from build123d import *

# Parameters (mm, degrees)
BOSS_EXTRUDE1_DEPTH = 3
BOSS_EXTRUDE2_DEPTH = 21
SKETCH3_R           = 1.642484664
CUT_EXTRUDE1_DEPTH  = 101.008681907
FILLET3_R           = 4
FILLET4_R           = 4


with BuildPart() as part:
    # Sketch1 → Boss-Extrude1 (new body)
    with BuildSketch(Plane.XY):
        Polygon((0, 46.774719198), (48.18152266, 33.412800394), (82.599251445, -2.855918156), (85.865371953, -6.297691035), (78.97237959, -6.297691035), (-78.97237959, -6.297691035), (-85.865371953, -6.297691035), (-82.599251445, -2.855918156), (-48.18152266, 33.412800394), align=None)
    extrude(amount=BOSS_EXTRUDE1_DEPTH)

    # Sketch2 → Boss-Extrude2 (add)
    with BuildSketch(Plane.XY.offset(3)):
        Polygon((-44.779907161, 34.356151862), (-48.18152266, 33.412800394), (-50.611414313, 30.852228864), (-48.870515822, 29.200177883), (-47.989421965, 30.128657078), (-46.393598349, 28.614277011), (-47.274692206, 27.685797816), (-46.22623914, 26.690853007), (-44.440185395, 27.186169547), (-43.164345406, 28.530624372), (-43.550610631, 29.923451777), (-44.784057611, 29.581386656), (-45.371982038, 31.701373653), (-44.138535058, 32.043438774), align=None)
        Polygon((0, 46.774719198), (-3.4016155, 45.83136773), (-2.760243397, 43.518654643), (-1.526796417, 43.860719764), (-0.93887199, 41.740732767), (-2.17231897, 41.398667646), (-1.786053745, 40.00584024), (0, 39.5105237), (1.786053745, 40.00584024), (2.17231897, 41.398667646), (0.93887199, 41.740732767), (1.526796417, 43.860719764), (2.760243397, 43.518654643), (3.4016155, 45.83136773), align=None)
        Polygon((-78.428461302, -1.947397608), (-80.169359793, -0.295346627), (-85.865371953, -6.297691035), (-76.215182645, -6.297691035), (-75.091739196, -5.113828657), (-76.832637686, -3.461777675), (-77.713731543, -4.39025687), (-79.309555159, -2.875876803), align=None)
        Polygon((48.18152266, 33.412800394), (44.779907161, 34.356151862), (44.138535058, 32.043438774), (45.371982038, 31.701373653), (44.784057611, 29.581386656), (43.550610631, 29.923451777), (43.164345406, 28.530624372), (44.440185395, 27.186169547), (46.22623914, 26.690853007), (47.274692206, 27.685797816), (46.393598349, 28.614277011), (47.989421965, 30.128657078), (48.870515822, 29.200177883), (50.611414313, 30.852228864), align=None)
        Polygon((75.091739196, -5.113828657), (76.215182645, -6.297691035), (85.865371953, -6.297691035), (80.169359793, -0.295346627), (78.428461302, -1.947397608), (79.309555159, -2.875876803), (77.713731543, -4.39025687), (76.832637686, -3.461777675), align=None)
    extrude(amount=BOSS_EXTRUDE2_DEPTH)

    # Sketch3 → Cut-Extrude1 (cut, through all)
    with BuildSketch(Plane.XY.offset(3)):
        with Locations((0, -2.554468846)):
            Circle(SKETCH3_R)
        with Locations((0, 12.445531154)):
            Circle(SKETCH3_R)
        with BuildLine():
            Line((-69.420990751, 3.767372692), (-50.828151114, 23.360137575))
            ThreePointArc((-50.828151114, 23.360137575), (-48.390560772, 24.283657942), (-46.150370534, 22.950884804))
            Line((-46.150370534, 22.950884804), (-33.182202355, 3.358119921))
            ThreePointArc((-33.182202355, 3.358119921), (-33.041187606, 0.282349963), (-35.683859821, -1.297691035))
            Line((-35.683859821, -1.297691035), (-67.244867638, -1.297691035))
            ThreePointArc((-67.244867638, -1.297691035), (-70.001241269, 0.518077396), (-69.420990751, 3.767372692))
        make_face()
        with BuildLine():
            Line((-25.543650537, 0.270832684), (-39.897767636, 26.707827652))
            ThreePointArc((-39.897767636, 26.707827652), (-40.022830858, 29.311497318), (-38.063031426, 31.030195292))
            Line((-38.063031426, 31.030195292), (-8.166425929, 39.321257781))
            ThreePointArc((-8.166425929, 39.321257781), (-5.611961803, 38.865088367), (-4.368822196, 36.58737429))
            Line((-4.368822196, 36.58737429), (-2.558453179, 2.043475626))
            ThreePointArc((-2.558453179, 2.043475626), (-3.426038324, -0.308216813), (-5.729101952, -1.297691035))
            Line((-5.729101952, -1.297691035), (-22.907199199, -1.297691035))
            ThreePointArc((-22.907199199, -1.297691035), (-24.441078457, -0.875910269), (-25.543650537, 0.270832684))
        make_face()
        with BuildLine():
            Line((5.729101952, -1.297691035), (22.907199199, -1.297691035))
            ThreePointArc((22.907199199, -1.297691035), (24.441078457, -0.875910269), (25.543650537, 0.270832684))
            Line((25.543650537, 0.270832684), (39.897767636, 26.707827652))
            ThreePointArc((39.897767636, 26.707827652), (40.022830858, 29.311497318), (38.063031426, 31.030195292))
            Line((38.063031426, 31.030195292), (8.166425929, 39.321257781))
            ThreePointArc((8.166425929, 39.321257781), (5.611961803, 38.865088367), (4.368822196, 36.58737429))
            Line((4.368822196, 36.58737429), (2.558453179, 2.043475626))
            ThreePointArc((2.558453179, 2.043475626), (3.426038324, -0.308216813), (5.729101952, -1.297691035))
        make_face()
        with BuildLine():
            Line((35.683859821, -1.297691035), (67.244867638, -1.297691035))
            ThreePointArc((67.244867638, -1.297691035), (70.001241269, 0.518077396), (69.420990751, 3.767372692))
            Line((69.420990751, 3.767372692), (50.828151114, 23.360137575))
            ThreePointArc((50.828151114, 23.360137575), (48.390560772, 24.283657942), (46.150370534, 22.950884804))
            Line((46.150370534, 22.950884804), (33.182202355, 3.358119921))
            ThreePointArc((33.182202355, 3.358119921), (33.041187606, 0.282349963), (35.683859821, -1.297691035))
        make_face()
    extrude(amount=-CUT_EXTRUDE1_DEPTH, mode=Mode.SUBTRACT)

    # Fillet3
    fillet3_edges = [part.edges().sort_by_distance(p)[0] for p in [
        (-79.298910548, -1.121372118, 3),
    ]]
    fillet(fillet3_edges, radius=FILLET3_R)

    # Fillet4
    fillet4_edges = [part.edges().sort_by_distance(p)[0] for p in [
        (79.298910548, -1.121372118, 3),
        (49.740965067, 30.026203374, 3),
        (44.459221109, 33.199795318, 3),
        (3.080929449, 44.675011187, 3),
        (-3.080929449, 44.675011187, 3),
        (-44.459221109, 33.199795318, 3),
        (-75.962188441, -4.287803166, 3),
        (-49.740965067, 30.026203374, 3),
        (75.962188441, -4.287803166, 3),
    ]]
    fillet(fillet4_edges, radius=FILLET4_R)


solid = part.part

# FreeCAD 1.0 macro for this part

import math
import FreeCAD as App
import Part
import Sketcher

V = App.Vector
Q = App.Units.Quantity


def edges_at(feature, points):
    """Names of the edges that pass closest to the given points."""
    edges = feature.Shape.Edges
    near = lambda p: min(range(len(edges)), key=lambda i: edges[i].distToShape(Part.Vertex(*p))[0])
    return sorted({f"Edge{near(p) + 1}" for p in points})

doc = App.newDocument("Part")
params = doc.addObject("Spreadsheet::Sheet", "Params")
for row, (alias, value) in enumerate([
    ("sketch1_length", "50 mm"),
    ("pad1_length", "3 mm"),
    ("sketch2_length", "2.4 mm"),
    ("sketch2_length2", "2.2 mm"),
    ("sketch2_length3", "3.53 mm"),
    ("sketch2_length4", "1.28 mm"),
    ("pad2_length", "21 mm"),
    ("sketch3_radius", "3 mm"),
    ("fillet_radius", "4 mm"),
    ("fillet2_radius", "4 mm"),
], start=1):
    params.set(f"A{row}", alias)
    params.set(f"B{row}", "=" + value)
    params.setAlias(f"B{row}", alias)

body = doc.addObject("PartDesign::Body", "Body")

sketch1 = body.newObject("Sketcher::SketchObject", "Sketch")
sketch1.AttachmentSupport = (doc.getObject("XY_Plane"), [""])
sketch1.MapMode = "FlatFace"
sketch1.addGeometry(Part.LineSegment(V(48.2, 33.4, 0), V(0, 46.8, 0)), False)
sketch1.addGeometry(Part.LineSegment(V(0, 46.8, 0), V(-48.2, 33.4, 0)), False)
sketch1.addGeometry(Part.LineSegment(V(-48.2, 33.4, 0), V(-82.6, -2.9, 0)), False)
sketch1.addGeometry(Part.LineSegment(V(-82.6, -2.9, 0), V(-85.9, -6.3, 0)), False)
sketch1.addGeometry(Part.LineSegment(V(-85.9, -6.3, 0), V(85.9, -6.3, 0)), False)
sketch1.addGeometry(Part.LineSegment(V(85.9, -6.3, 0), V(82.6, -2.9, 0)), False)
sketch1.addGeometry(Part.LineSegment(V(82.6, -2.9, 0), V(48.2, 33.4, 0)), False)
sketch1.addConstraint(Sketcher.Constraint("Coincident", 0, 2, 1, 1))
sketch1.addConstraint(Sketcher.Constraint("Coincident", 1, 2, 2, 1))
sketch1.addConstraint(Sketcher.Constraint("Coincident", 2, 2, 3, 1))
sketch1.addConstraint(Sketcher.Constraint("Coincident", 3, 2, 4, 1))
sketch1.addConstraint(Sketcher.Constraint("Coincident", 4, 2, 5, 1))
sketch1.addConstraint(Sketcher.Constraint("Coincident", 5, 2, 6, 1))
sketch1.addConstraint(Sketcher.Constraint("Coincident", 6, 2, 0, 1))
sketch1.addConstraint(Sketcher.Constraint("Horizontal", 4))
sketch1.addConstraint(Sketcher.Constraint("Symmetric", 2, 2, 5, 2, -2))
sketch1.addConstraint(Sketcher.Constraint("Symmetric", 1, 2, 6, 2, -2))
sketch1.addConstraint(Sketcher.Constraint("PointOnObject", 0, 2, -2))
sketch1.addConstraint(Sketcher.Constraint("Parallel", 2, 3))
sketch1.addConstraint(Sketcher.Constraint("Parallel", 5, 6))
sketch1.addConstraint(Sketcher.Constraint("Equal", 1, 2))
sketch1.addConstraint(Sketcher.Constraint("Distance", 0, Q("50 mm")))
sketch1.addConstraint(Sketcher.Constraint("Angle", 0, Q("164.5 deg")))
sketch1.addConstraint(Sketcher.Constraint("Angle", 2, Q("-133.5 deg")))
sketch1.addConstraint(Sketcher.Constraint("DistanceY", -1, 1, 1, 2, Q("33.4128 mm")))
sketch1.addConstraint(Sketcher.Constraint("DistanceX", 4, 1, 4, 2, Q("171.730744 mm")))
sketch1.setExpression("Constraints[14]", "Params.sketch1_length")
pad1 = body.newObject("PartDesign::Pad", "Pad")
pad1.Profile = sketch1
pad1.setExpression("Length", "Params.pad1_length")

sketch2 = body.newObject("Sketcher::SketchObject", "Sketch001")
sketch2.AttachmentSupport = (doc.getObject("XY_Plane"), [""])
sketch2.MapMode = "FlatFace"
sketch2.AttachmentOffset = App.Placement(V(0, 0, 3), App.Rotation())
sketch2.addGeometry(Part.LineSegment(V(-44.8, 34.4, 0), V(-48.2, 33.4, 0)), False)
sketch2.addGeometry(Part.LineSegment(V(-48.2, 33.4, 0), V(-50.6, 30.9, 0)), False)
sketch2.addGeometry(Part.LineSegment(V(-50.6, 30.9, 0), V(-48.9, 29.2, 0)), False)
sketch2.addGeometry(Part.LineSegment(V(-48.9, 29.2, 0), V(-48, 30.1, 0)), False)
sketch2.addGeometry(Part.LineSegment(V(-48, 30.1, 0), V(-46.4, 28.6, 0)), False)
sketch2.addGeometry(Part.LineSegment(V(-46.4, 28.6, 0), V(-47.3, 27.7, 0)), False)
sketch2.addGeometry(Part.LineSegment(V(-47.3, 27.7, 0), V(-46.2, 26.7, 0)), False)
sketch2.addGeometry(Part.LineSegment(V(-46.2, 26.7, 0), V(-44.4, 27.2, 0)), False)
sketch2.addGeometry(Part.LineSegment(V(-44.4, 27.2, 0), V(-43.2, 28.5, 0)), False)
sketch2.addGeometry(Part.LineSegment(V(-43.2, 28.5, 0), V(-43.6, 29.9, 0)), False)
sketch2.addGeometry(Part.LineSegment(V(-43.6, 29.9, 0), V(-44.8, 29.6, 0)), False)
sketch2.addGeometry(Part.LineSegment(V(-44.8, 29.6, 0), V(-45.4, 31.7, 0)), False)
sketch2.addGeometry(Part.LineSegment(V(-45.4, 31.7, 0), V(-44.1, 32, 0)), False)
sketch2.addGeometry(Part.LineSegment(V(-44.1, 32, 0), V(-44.8, 34.4, 0)), False)
sketch2.addGeometry(Part.LineSegment(V(0, 46.8, 0), V(-3.4, 45.8, 0)), False)
sketch2.addGeometry(Part.LineSegment(V(-3.4, 45.8, 0), V(-2.8, 43.5, 0)), False)
sketch2.addGeometry(Part.LineSegment(V(-2.8, 43.5, 0), V(-1.5, 43.9, 0)), False)
sketch2.addGeometry(Part.LineSegment(V(-1.5, 43.9, 0), V(-0.9, 41.7, 0)), False)
sketch2.addGeometry(Part.LineSegment(V(-0.9, 41.7, 0), V(-2.2, 41.4, 0)), False)
sketch2.addGeometry(Part.LineSegment(V(-2.2, 41.4, 0), V(-1.8, 40, 0)), False)
sketch2.addGeometry(Part.LineSegment(V(-1.8, 40, 0), V(0, 39.5, 0)), False)
sketch2.addGeometry(Part.LineSegment(V(0, 39.5, 0), V(1.8, 40, 0)), False)
sketch2.addGeometry(Part.LineSegment(V(1.8, 40, 0), V(2.2, 41.4, 0)), False)
sketch2.addGeometry(Part.LineSegment(V(2.2, 41.4, 0), V(0.9, 41.7, 0)), False)
sketch2.addGeometry(Part.LineSegment(V(0.9, 41.7, 0), V(1.5, 43.9, 0)), False)
sketch2.addGeometry(Part.LineSegment(V(1.5, 43.9, 0), V(2.8, 43.5, 0)), False)
sketch2.addGeometry(Part.LineSegment(V(2.8, 43.5, 0), V(3.4, 45.8, 0)), False)
sketch2.addGeometry(Part.LineSegment(V(3.4, 45.8, 0), V(0, 46.8, 0)), False)
sketch2.addGeometry(Part.LineSegment(V(-78.4, -1.9, 0), V(-80.2, -0.3, 0)), False)
sketch2.addGeometry(Part.LineSegment(V(-80.2, -0.3, 0), V(-85.9, -6.3, 0)), False)
sketch2.addGeometry(Part.LineSegment(V(-85.9, -6.3, 0), V(-76.2, -6.3, 0)), False)
sketch2.addGeometry(Part.LineSegment(V(-76.2, -6.3, 0), V(-75.1, -5.1, 0)), False)
sketch2.addGeometry(Part.LineSegment(V(-75.1, -5.1, 0), V(-76.8, -3.5, 0)), False)
sketch2.addGeometry(Part.LineSegment(V(-76.8, -3.5, 0), V(-77.7, -4.4, 0)), False)
sketch2.addGeometry(Part.LineSegment(V(-77.7, -4.4, 0), V(-79.3, -2.9, 0)), False)
sketch2.addGeometry(Part.LineSegment(V(-79.3, -2.9, 0), V(-78.4, -1.9, 0)), False)
sketch2.addGeometry(Part.LineSegment(V(48.2, 33.4, 0), V(44.8, 34.4, 0)), False)
sketch2.addGeometry(Part.LineSegment(V(44.8, 34.4, 0), V(44.1, 32, 0)), False)
sketch2.addGeometry(Part.LineSegment(V(44.1, 32, 0), V(45.4, 31.7, 0)), False)
sketch2.addGeometry(Part.LineSegment(V(45.4, 31.7, 0), V(44.8, 29.6, 0)), False)
sketch2.addGeometry(Part.LineSegment(V(44.8, 29.6, 0), V(43.6, 29.9, 0)), False)
sketch2.addGeometry(Part.LineSegment(V(43.6, 29.9, 0), V(43.2, 28.5, 0)), False)
sketch2.addGeometry(Part.LineSegment(V(43.2, 28.5, 0), V(44.4, 27.2, 0)), False)
sketch2.addGeometry(Part.LineSegment(V(44.4, 27.2, 0), V(46.2, 26.7, 0)), False)
sketch2.addGeometry(Part.LineSegment(V(46.2, 26.7, 0), V(47.3, 27.7, 0)), False)
sketch2.addGeometry(Part.LineSegment(V(47.3, 27.7, 0), V(46.4, 28.6, 0)), False)
sketch2.addGeometry(Part.LineSegment(V(46.4, 28.6, 0), V(48, 30.1, 0)), False)
sketch2.addGeometry(Part.LineSegment(V(48, 30.1, 0), V(48.9, 29.2, 0)), False)
sketch2.addGeometry(Part.LineSegment(V(48.9, 29.2, 0), V(50.6, 30.9, 0)), False)
sketch2.addGeometry(Part.LineSegment(V(50.6, 30.9, 0), V(48.2, 33.4, 0)), False)
sketch2.addGeometry(Part.LineSegment(V(75.1, -5.1, 0), V(76.2, -6.3, 0)), False)
sketch2.addGeometry(Part.LineSegment(V(76.2, -6.3, 0), V(85.9, -6.3, 0)), False)
sketch2.addGeometry(Part.LineSegment(V(85.9, -6.3, 0), V(80.2, -0.3, 0)), False)
sketch2.addGeometry(Part.LineSegment(V(80.2, -0.3, 0), V(78.4, -1.9, 0)), False)
sketch2.addGeometry(Part.LineSegment(V(78.4, -1.9, 0), V(79.3, -2.9, 0)), False)
sketch2.addGeometry(Part.LineSegment(V(79.3, -2.9, 0), V(77.7, -4.4, 0)), False)
sketch2.addGeometry(Part.LineSegment(V(77.7, -4.4, 0), V(76.8, -3.5, 0)), False)
sketch2.addGeometry(Part.LineSegment(V(76.8, -3.5, 0), V(75.1, -5.1, 0)), False)
sketch2.addConstraint(Sketcher.Constraint("Coincident", 0, 2, 1, 1))
sketch2.addConstraint(Sketcher.Constraint("Coincident", 1, 2, 2, 1))
sketch2.addConstraint(Sketcher.Constraint("Coincident", 2, 2, 3, 1))
sketch2.addConstraint(Sketcher.Constraint("Coincident", 3, 2, 4, 1))
sketch2.addConstraint(Sketcher.Constraint("Coincident", 4, 2, 5, 1))
sketch2.addConstraint(Sketcher.Constraint("Coincident", 5, 2, 6, 1))
sketch2.addConstraint(Sketcher.Constraint("Coincident", 6, 2, 7, 1))
sketch2.addConstraint(Sketcher.Constraint("Coincident", 7, 2, 8, 1))
sketch2.addConstraint(Sketcher.Constraint("Coincident", 8, 2, 9, 1))
sketch2.addConstraint(Sketcher.Constraint("Coincident", 9, 2, 10, 1))
sketch2.addConstraint(Sketcher.Constraint("Coincident", 10, 2, 11, 1))
sketch2.addConstraint(Sketcher.Constraint("Coincident", 11, 2, 12, 1))
sketch2.addConstraint(Sketcher.Constraint("Coincident", 12, 2, 13, 1))
sketch2.addConstraint(Sketcher.Constraint("Coincident", 13, 2, 0, 1))
sketch2.addConstraint(Sketcher.Constraint("Coincident", 14, 2, 15, 1))
sketch2.addConstraint(Sketcher.Constraint("Coincident", 15, 2, 16, 1))
sketch2.addConstraint(Sketcher.Constraint("Coincident", 16, 2, 17, 1))
sketch2.addConstraint(Sketcher.Constraint("Coincident", 17, 2, 18, 1))
sketch2.addConstraint(Sketcher.Constraint("Coincident", 18, 2, 19, 1))
sketch2.addConstraint(Sketcher.Constraint("Coincident", 19, 2, 20, 1))
sketch2.addConstraint(Sketcher.Constraint("Coincident", 20, 2, 21, 1))
sketch2.addConstraint(Sketcher.Constraint("Coincident", 21, 2, 22, 1))
sketch2.addConstraint(Sketcher.Constraint("Coincident", 22, 2, 23, 1))
sketch2.addConstraint(Sketcher.Constraint("Coincident", 23, 2, 24, 1))
sketch2.addConstraint(Sketcher.Constraint("Coincident", 24, 2, 25, 1))
sketch2.addConstraint(Sketcher.Constraint("Coincident", 25, 2, 26, 1))
sketch2.addConstraint(Sketcher.Constraint("Coincident", 26, 2, 27, 1))
sketch2.addConstraint(Sketcher.Constraint("Coincident", 27, 2, 14, 1))
sketch2.addConstraint(Sketcher.Constraint("Coincident", 28, 2, 29, 1))
sketch2.addConstraint(Sketcher.Constraint("Coincident", 29, 2, 30, 1))
sketch2.addConstraint(Sketcher.Constraint("Coincident", 30, 2, 31, 1))
sketch2.addConstraint(Sketcher.Constraint("Coincident", 31, 2, 32, 1))
sketch2.addConstraint(Sketcher.Constraint("Coincident", 32, 2, 33, 1))
sketch2.addConstraint(Sketcher.Constraint("Coincident", 33, 2, 34, 1))
sketch2.addConstraint(Sketcher.Constraint("Coincident", 34, 2, 35, 1))
sketch2.addConstraint(Sketcher.Constraint("Coincident", 35, 2, 28, 1))
sketch2.addConstraint(Sketcher.Constraint("Coincident", 36, 2, 37, 1))
sketch2.addConstraint(Sketcher.Constraint("Coincident", 37, 2, 38, 1))
sketch2.addConstraint(Sketcher.Constraint("Coincident", 38, 2, 39, 1))
sketch2.addConstraint(Sketcher.Constraint("Coincident", 39, 2, 40, 1))
sketch2.addConstraint(Sketcher.Constraint("Coincident", 40, 2, 41, 1))
sketch2.addConstraint(Sketcher.Constraint("Coincident", 41, 2, 42, 1))
sketch2.addConstraint(Sketcher.Constraint("Coincident", 42, 2, 43, 1))
sketch2.addConstraint(Sketcher.Constraint("Coincident", 43, 2, 44, 1))
sketch2.addConstraint(Sketcher.Constraint("Coincident", 44, 2, 45, 1))
sketch2.addConstraint(Sketcher.Constraint("Coincident", 45, 2, 46, 1))
sketch2.addConstraint(Sketcher.Constraint("Coincident", 46, 2, 47, 1))
sketch2.addConstraint(Sketcher.Constraint("Coincident", 47, 2, 48, 1))
sketch2.addConstraint(Sketcher.Constraint("Coincident", 48, 2, 49, 1))
sketch2.addConstraint(Sketcher.Constraint("Coincident", 49, 2, 36, 1))
sketch2.addConstraint(Sketcher.Constraint("Coincident", 50, 2, 51, 1))
sketch2.addConstraint(Sketcher.Constraint("Coincident", 51, 2, 52, 1))
sketch2.addConstraint(Sketcher.Constraint("Coincident", 52, 2, 53, 1))
sketch2.addConstraint(Sketcher.Constraint("Coincident", 53, 2, 54, 1))
sketch2.addConstraint(Sketcher.Constraint("Coincident", 54, 2, 55, 1))
sketch2.addConstraint(Sketcher.Constraint("Coincident", 55, 2, 56, 1))
sketch2.addConstraint(Sketcher.Constraint("Coincident", 56, 2, 57, 1))
sketch2.addConstraint(Sketcher.Constraint("Coincident", 57, 2, 50, 1))
sketch2.addConstraint(Sketcher.Constraint("Horizontal", 30))
sketch2.addConstraint(Sketcher.Constraint("Horizontal", 51))
sketch2.addConstraint(Sketcher.Constraint("Symmetric", 19, 2, 21, 2, -2))
sketch2.addConstraint(Sketcher.Constraint("Symmetric", 18, 2, 22, 2, -2))
sketch2.addConstraint(Sketcher.Constraint("Symmetric", 17, 2, 23, 2, -2))
sketch2.addConstraint(Sketcher.Constraint("Symmetric", 16, 2, 24, 2, -2))
sketch2.addConstraint(Sketcher.Constraint("Symmetric", 15, 2, 25, 2, -2))
sketch2.addConstraint(Sketcher.Constraint("Symmetric", 14, 2, 26, 2, -2))
sketch2.addConstraint(Sketcher.Constraint("Symmetric", 13, 2, 36, 2, -2))
sketch2.addConstraint(Sketcher.Constraint("Symmetric", 12, 2, 37, 2, -2))
sketch2.addConstraint(Sketcher.Constraint("Symmetric", 11, 2, 38, 2, -2))
sketch2.addConstraint(Sketcher.Constraint("Symmetric", 10, 2, 39, 2, -2))
sketch2.addConstraint(Sketcher.Constraint("Symmetric", 9, 2, 40, 2, -2))
sketch2.addConstraint(Sketcher.Constraint("Symmetric", 8, 2, 41, 2, -2))
sketch2.addConstraint(Sketcher.Constraint("Symmetric", 7, 2, 42, 2, -2))
sketch2.addConstraint(Sketcher.Constraint("Symmetric", 6, 2, 43, 2, -2))
sketch2.addConstraint(Sketcher.Constraint("Symmetric", 5, 2, 44, 2, -2))
sketch2.addConstraint(Sketcher.Constraint("Symmetric", 4, 2, 45, 2, -2))
sketch2.addConstraint(Sketcher.Constraint("Symmetric", 3, 2, 46, 2, -2))
sketch2.addConstraint(Sketcher.Constraint("Symmetric", 2, 2, 47, 2, -2))
sketch2.addConstraint(Sketcher.Constraint("Symmetric", 1, 2, 48, 2, -2))
sketch2.addConstraint(Sketcher.Constraint("Symmetric", 0, 2, 49, 2, -2))
sketch2.addConstraint(Sketcher.Constraint("Symmetric", 30, 2, 50, 2, -2))
sketch2.addConstraint(Sketcher.Constraint("Symmetric", 28, 2, 52, 2, -2))
sketch2.addConstraint(Sketcher.Constraint("Symmetric", 35, 2, 53, 2, -2))
sketch2.addConstraint(Sketcher.Constraint("Symmetric", 34, 2, 54, 2, -2))
sketch2.addConstraint(Sketcher.Constraint("Symmetric", 33, 2, 55, 2, -2))
sketch2.addConstraint(Sketcher.Constraint("Symmetric", 32, 2, 56, 2, -2))
sketch2.addConstraint(Sketcher.Constraint("Symmetric", 31, 2, 57, 2, -2))
sketch2.addConstraint(Sketcher.Constraint("PointOnObject", 20, 2, -2))
sketch2.addConstraint(Sketcher.Constraint("PointOnObject", 27, 2, -2))
sketch2.addConstraint(Sketcher.Constraint("Perpendicular", 1, 2))
sketch2.addConstraint(Sketcher.Constraint("Perpendicular", 2, 3))
sketch2.addConstraint(Sketcher.Constraint("Perpendicular", 3, 4))
sketch2.addConstraint(Sketcher.Constraint("Perpendicular", 4, 5))
sketch2.addConstraint(Sketcher.Constraint("Perpendicular", 5, 6))
sketch2.addConstraint(Sketcher.Constraint("Parallel", 0, 7))
sketch2.addConstraint(Sketcher.Constraint("Perpendicular", 6, 8))
sketch2.addConstraint(Sketcher.Constraint("Perpendicular", 7, 9))
sketch2.addConstraint(Sketcher.Constraint("Perpendicular", 9, 10))
sketch2.addConstraint(Sketcher.Constraint("Perpendicular", 10, 11))
sketch2.addConstraint(Sketcher.Constraint("Perpendicular", 11, 12))
sketch2.addConstraint(Sketcher.Constraint("Perpendicular", 12, 13))
sketch2.addConstraint(Sketcher.Constraint("Perpendicular", 13, 14))
sketch2.addConstraint(Sketcher.Constraint("Perpendicular", 14, 15))
sketch2.addConstraint(Sketcher.Constraint("Perpendicular", 15, 16))
sketch2.addConstraint(Sketcher.Constraint("Perpendicular", 16, 17))
sketch2.addConstraint(Sketcher.Constraint("Perpendicular", 17, 18))
sketch2.addConstraint(Sketcher.Constraint("Perpendicular", 18, 19))
sketch2.addConstraint(Sketcher.Constraint("Perpendicular", 19, 21))
sketch2.addConstraint(Sketcher.Constraint("Perpendicular", 8, 28))
sketch2.addConstraint(Sketcher.Constraint("Perpendicular", 28, 29))
sketch2.addConstraint(Sketcher.Constraint("Parallel", 29, 31))
sketch2.addConstraint(Sketcher.Constraint("Perpendicular", 31, 32))
sketch2.addConstraint(Sketcher.Constraint("Perpendicular", 32, 33))
sketch2.addConstraint(Sketcher.Constraint("Perpendicular", 33, 34))
sketch2.addConstraint(Sketcher.Constraint("Perpendicular", 34, 35))
sketch2.addConstraint(Sketcher.Constraint("Parallel", 50, 52))
sketch2.addConstraint(Sketcher.Constraint("Equal", 0, 1))
sketch2.addConstraint(Sketcher.Constraint("Equal", 3, 5))
sketch2.addConstraint(Sketcher.Constraint("Equal", 7, 8))
sketch2.addConstraint(Sketcher.Constraint("Equal", 6, 9))
sketch2.addConstraint(Sketcher.Constraint("Equal", 5, 10))
sketch2.addConstraint(Sketcher.Constraint("Equal", 4, 11))
sketch2.addConstraint(Sketcher.Constraint("Equal", 10, 12))
sketch2.addConstraint(Sketcher.Constraint("Equal", 1, 14))
sketch2.addConstraint(Sketcher.Constraint("Equal", 13, 15))
sketch2.addConstraint(Sketcher.Constraint("Equal", 12, 16))
sketch2.addConstraint(Sketcher.Constraint("Equal", 11, 17))
sketch2.addConstraint(Sketcher.Constraint("Equal", 16, 18))
sketch2.addConstraint(Sketcher.Constraint("Equal", 9, 19))
sketch2.addConstraint(Sketcher.Constraint("Equal", 8, 20))
sketch2.addConstraint(Sketcher.Constraint("Equal", 26, 28))
sketch2.addConstraint(Sketcher.Constraint("Equal", 28, 32))
sketch2.addConstraint(Sketcher.Constraint("Equal", 25, 33))
sketch2.addConstraint(Sketcher.Constraint("Equal", 24, 34))
sketch2.addConstraint(Sketcher.Constraint("Equal", 33, 35))
sketch2.addConstraint(Sketcher.Constraint("Angle", 0, Q("-164.5 deg")))
sketch2.addConstraint(Sketcher.Constraint("Distance", 2, Q("2.4 mm")))
sketch2.addConstraint(Sketcher.Constraint("Distance", 4, Q("2.2 mm")))
sketch2.addConstraint(Sketcher.Constraint("Distance", 0, Q("3.53 mm")))
sketch2.addConstraint(Sketcher.Constraint("Distance", 3, Q("1.28 mm")))
sketch2.addConstraint(Sketcher.Constraint("DistanceY", -1, 1, 0, 2, Q("33.4128 mm")))
sketch2.addConstraint(Sketcher.Constraint("DistanceX", 4, 2, -1, 1, Q("46.393598 mm")))
sketch2.addConstraint(Sketcher.Constraint("DistanceY", 6, 2, 9, 2, Q("3.232599 mm")))
sketch2.addConstraint(Sketcher.Constraint("DistanceY", 28, 2, 6, 2, Q("26.9862 mm")))
sketch2.addConstraint(Sketcher.Constraint("DistanceX", 31, 2, 6, 2, Q("28.8655 mm")))
sketch2.addConstraint(Sketcher.Constraint("DistanceY", 37, 2, 21, 2, Q("7.962401 mm")))
sketch2.addConstraint(Sketcher.Constraint("Distance", 31, Q("1.632071 mm")))
sketch2.setExpression("Constraints[136]", "Params.sketch2_length")
sketch2.setExpression("Constraints[137]", "Params.sketch2_length2")
sketch2.setExpression("Constraints[138]", "Params.sketch2_length3")
sketch2.setExpression("Constraints[139]", "Params.sketch2_length4")
pad2 = body.newObject("PartDesign::Pad", "Pad001")
pad2.Profile = sketch2
pad2.setExpression("Length", "Params.pad2_length")

sketch3 = body.newObject("Sketcher::SketchObject", "Sketch002")
sketch3.AttachmentSupport = (doc.getObject("XY_Plane"), [""])
sketch3.MapMode = "FlatFace"
sketch3.AttachmentOffset = App.Placement(V(0, 0, 3), App.Rotation())
sketch3.addGeometry(Part.Circle(V(0, -2.6, 0), V(0, 0, 1), 1.6), False)
sketch3.addGeometry(Part.Circle(V(0, 12.4, 0), V(0, 0, 1), 1.6), False)
sketch3.addGeometry(Part.LineSegment(V(-50.8, 23.4, 0), V(-69.4, 3.8, 0)), False)
sketch3.addGeometry(Part.ArcOfCircle(Part.Circle(V(-67.2, 1.7, 0), V(0, 0, 1), 3), math.radians(136), math.radians(270)), False)
sketch3.addGeometry(Part.LineSegment(V(-67.2, -1.3, 0), V(-35.7, -1.3, 0)), False)
sketch3.addGeometry(Part.ArcOfCircle(Part.Circle(V(-35.7, 1.7, 0), V(0, 0, 1), 3), math.radians(-90), math.radians(34)), False)
sketch3.addGeometry(Part.LineSegment(V(-33.2, 3.4, 0), V(-46.2, 23, 0)), False)
sketch3.addGeometry(Part.ArcOfCircle(Part.Circle(V(-48.7, 21.3, 0), V(0, 0, 1), 3), math.radians(34), math.radians(136)), False)
sketch3.addGeometry(Part.LineSegment(V(-39.9, 26.7, 0), V(-25.5, 0.3, 0)), False)
sketch3.addGeometry(Part.ArcOfCircle(Part.Circle(V(-22.9, 1.7, 0), V(0, 0, 1), 3), math.radians(-151), math.radians(-90)), False)
sketch3.addGeometry(Part.LineSegment(V(-22.9, -1.3, 0), V(-5.7, -1.3, 0)), False)
sketch3.addGeometry(Part.ArcOfCircle(Part.Circle(V(-5.7, 1.9, 0), V(0, 0, 1), 3.2), math.radians(-90), math.radians(3)), False)
sketch3.addGeometry(Part.LineSegment(V(-2.6, 2, 0), V(-4.4, 36.6, 0)), False)
sketch3.addGeometry(Part.ArcOfCircle(Part.Circle(V(-7.4, 36.4, 0), V(0, 0, 1), 3), math.radians(3), math.radians(106)), False)
sketch3.addGeometry(Part.LineSegment(V(-8.2, 39.3, 0), V(-38.1, 31, 0)), False)
sketch3.addGeometry(Part.ArcOfCircle(Part.Circle(V(-37.3, 28.1, 0), V(0, 0, 1), 3), math.radians(105), math.radians(208)), False)
sketch3.addGeometry(Part.LineSegment(V(5.7, -1.3, 0), V(22.9, -1.3, 0)), False)
sketch3.addGeometry(Part.ArcOfCircle(Part.Circle(V(22.9, 1.7, 0), V(0, 0, 1), 3), math.radians(-90), math.radians(-29)), False)
sketch3.addGeometry(Part.LineSegment(V(25.5, 0.3, 0), V(39.9, 26.7, 0)), False)
sketch3.addGeometry(Part.ArcOfCircle(Part.Circle(V(37.3, 28.1, 0), V(0, 0, 1), 3), math.radians(-28), math.radians(75)), False)
sketch3.addGeometry(Part.LineSegment(V(38.1, 31, 0), V(8.2, 39.3, 0)), False)
sketch3.addGeometry(Part.ArcOfCircle(Part.Circle(V(7.4, 36.4, 0), V(0, 0, 1), 3), math.radians(74), math.radians(177)), False)
sketch3.addGeometry(Part.LineSegment(V(4.4, 36.6, 0), V(2.6, 2, 0)), False)
sketch3.addGeometry(Part.ArcOfCircle(Part.Circle(V(5.7, 1.9, 0), V(0, 0, 1), 3.2), math.radians(177), math.radians(270)), False)
sketch3.addGeometry(Part.LineSegment(V(35.7, -1.3, 0), V(67.2, -1.3, 0)), False)
sketch3.addGeometry(Part.ArcOfCircle(Part.Circle(V(67.2, 1.7, 0), V(0, 0, 1), 3), math.radians(-90), math.radians(44)), False)
sketch3.addGeometry(Part.LineSegment(V(69.4, 3.8, 0), V(50.8, 23.4, 0)), False)
sketch3.addGeometry(Part.ArcOfCircle(Part.Circle(V(48.7, 21.3, 0), V(0, 0, 1), 3), math.radians(44), math.radians(146)), False)
sketch3.addGeometry(Part.LineSegment(V(46.2, 23, 0), V(33.2, 3.4, 0)), False)
sketch3.addGeometry(Part.ArcOfCircle(Part.Circle(V(35.7, 1.7, 0), V(0, 0, 1), 3), math.radians(146), math.radians(270)), False)
sketch3.addConstraint(Sketcher.Constraint("Tangent", 2, 2, 3, 1))
sketch3.addConstraint(Sketcher.Constraint("Tangent", 3, 2, 4, 1))
sketch3.addConstraint(Sketcher.Constraint("Tangent", 4, 2, 5, 1))
sketch3.addConstraint(Sketcher.Constraint("Tangent", 5, 2, 6, 1))
sketch3.addConstraint(Sketcher.Constraint("Tangent", 6, 2, 7, 1))
sketch3.addConstraint(Sketcher.Constraint("Tangent", 7, 2, 2, 1))
sketch3.addConstraint(Sketcher.Constraint("Tangent", 8, 2, 9, 1))
sketch3.addConstraint(Sketcher.Constraint("Tangent", 9, 2, 10, 1))
sketch3.addConstraint(Sketcher.Constraint("Tangent", 10, 2, 11, 1))
sketch3.addConstraint(Sketcher.Constraint("Tangent", 11, 2, 12, 1))
sketch3.addConstraint(Sketcher.Constraint("Tangent", 12, 2, 13, 1))
sketch3.addConstraint(Sketcher.Constraint("Tangent", 13, 2, 14, 1))
sketch3.addConstraint(Sketcher.Constraint("Tangent", 14, 2, 15, 1))
sketch3.addConstraint(Sketcher.Constraint("Tangent", 15, 2, 8, 1))
sketch3.addConstraint(Sketcher.Constraint("Tangent", 16, 2, 17, 1))
sketch3.addConstraint(Sketcher.Constraint("Tangent", 17, 2, 18, 1))
sketch3.addConstraint(Sketcher.Constraint("Tangent", 18, 2, 19, 1))
sketch3.addConstraint(Sketcher.Constraint("Tangent", 19, 2, 20, 1))
sketch3.addConstraint(Sketcher.Constraint("Tangent", 20, 2, 21, 1))
sketch3.addConstraint(Sketcher.Constraint("Tangent", 21, 2, 22, 1))
sketch3.addConstraint(Sketcher.Constraint("Tangent", 22, 2, 23, 1))
sketch3.addConstraint(Sketcher.Constraint("Tangent", 23, 2, 16, 1))
sketch3.addConstraint(Sketcher.Constraint("Tangent", 24, 2, 25, 1))
sketch3.addConstraint(Sketcher.Constraint("Tangent", 25, 2, 26, 1))
sketch3.addConstraint(Sketcher.Constraint("Tangent", 26, 2, 27, 1))
sketch3.addConstraint(Sketcher.Constraint("Tangent", 27, 2, 28, 1))
sketch3.addConstraint(Sketcher.Constraint("Tangent", 28, 2, 29, 1))
sketch3.addConstraint(Sketcher.Constraint("Tangent", 29, 2, 24, 1))
sketch3.addConstraint(Sketcher.Constraint("Horizontal", 4))
sketch3.addConstraint(Sketcher.Constraint("Horizontal", 10))
sketch3.addConstraint(Sketcher.Constraint("Horizontal", 16))
sketch3.addConstraint(Sketcher.Constraint("Horizontal", 24))
sketch3.addConstraint(Sketcher.Constraint("Equal", 0, 1))
sketch3.addConstraint(Sketcher.Constraint("Equal", 3, 5))
sketch3.addConstraint(Sketcher.Constraint("Equal", 5, 7))
sketch3.addConstraint(Sketcher.Constraint("Equal", 7, 9))
sketch3.addConstraint(Sketcher.Constraint("Equal", 9, 13))
sketch3.addConstraint(Sketcher.Constraint("Equal", 13, 15))
sketch3.addConstraint(Sketcher.Constraint("Equal", 15, 17))
sketch3.addConstraint(Sketcher.Constraint("Equal", 17, 19))
sketch3.addConstraint(Sketcher.Constraint("Equal", 19, 21))
sketch3.addConstraint(Sketcher.Constraint("Equal", 11, 23))
sketch3.addConstraint(Sketcher.Constraint("Equal", 21, 25))
sketch3.addConstraint(Sketcher.Constraint("Equal", 25, 27))
sketch3.addConstraint(Sketcher.Constraint("Equal", 27, 29))
sketch3.addConstraint(Sketcher.Constraint("Symmetric", 9, 3, 17, 3, -2))
sketch3.addConstraint(Sketcher.Constraint("Symmetric", 15, 3, 19, 3, -2))
sketch3.addConstraint(Sketcher.Constraint("Symmetric", 13, 3, 21, 3, -2))
sketch3.addConstraint(Sketcher.Constraint("Symmetric", 3, 3, 25, 3, -2))
sketch3.addConstraint(Sketcher.Constraint("Symmetric", 7, 3, 27, 3, -2))
sketch3.addConstraint(Sketcher.Constraint("PointOnObject", 0, 3, -2))
sketch3.addConstraint(Sketcher.Constraint("PointOnObject", 1, 3, -2))
sketch3.addConstraint(Sketcher.Constraint("Horizontal", 5, 3, 9, 3))
sketch3.addConstraint(Sketcher.Constraint("Horizontal", 12, 2, 21, 2))
sketch3.addConstraint(Sketcher.Constraint("Horizontal", 6, 2, 27, 2))
sketch3.addConstraint(Sketcher.Constraint("Radius", 3, Q("3 mm")))
sketch3.addConstraint(Sketcher.Constraint("Angle", 12, Q("93 deg")))
sketch3.addConstraint(Sketcher.Constraint("Angle", 2, Q("-133.5 deg")))
sketch3.addConstraint(Sketcher.Constraint("Angle", 6, Q("123.5 deg")))
sketch3.addConstraint(Sketcher.Constraint("Angle", 8, Q("-61.5 deg")))
sketch3.addConstraint(Sketcher.Constraint("Angle", 14, Q("-164.5 deg")))
sketch3.addConstraint(Sketcher.Constraint("Radius", 11, Q("3.175 mm")))
sketch3.addConstraint(Sketcher.Constraint("DistanceY", 0, 3, 1, 3, Q("15 mm")))
sketch3.addConstraint(Sketcher.Constraint("Diameter", 0, Q("3.284969 mm")))
sketch3.addConstraint(Sketcher.Constraint("DistanceX", 9, 3, -1, 1, Q("22.907199 mm")))
sketch3.addConstraint(Sketcher.Constraint("DistanceX", 11, 3, -1, 1, Q("5.729102 mm")))
sketch3.addConstraint(Sketcher.Constraint("DistanceY", 2, 2, 7, 3, Q("17.527701 mm")))
sketch3.addConstraint(Sketcher.Constraint("DistanceY", 11, 2, 12, 2, Q("34.543899 mm")))
sketch3.addConstraint(Sketcher.Constraint("DistanceY", 0, 3, 17, 2, Q("2.825302 mm")))
sketch3.addConstraint(Sketcher.Constraint("DistanceX", 18, 2, 24, 2, Q("27.3471 mm")))
sketch3.addConstraint(Sketcher.Constraint("DistanceY", 0, 3, -1, 1, Q("2.554469 mm")))
sketch3.setExpression("Constraints[55]", "Params.sketch3_radius")
pocket1 = body.newObject("PartDesign::Pocket", "Pocket")
pocket1.Profile = sketch3
pocket1.Type = "ThroughAll"
doc.recompute()

fillet = body.newObject("PartDesign::Fillet", "Fillet")
fillet.Base = (pocket1, edges_at(pocket1, [(-79.299, -1.121, 3)]))
fillet.setExpression("Radius", "Params.fillet_radius")
doc.recompute()

fillet2 = body.newObject("PartDesign::Fillet", "Fillet001")
fillet2.Base = (fillet, edges_at(fillet, [
    (79.299, -1.121, 3),
    (49.741, 30.026, 3),
    (44.459, 33.2, 3),
    (3.081, 44.675, 3),
    (-3.081, 44.675, 3),
    (-44.459, 33.2, 3),
    (-75.962, -4.288, 3),
    (-49.741, 30.026, 3),
    (75.962, -4.288, 3),
]))
fillet2.setExpression("Radius", "Params.fillet2_radius")

doc.recompute()
